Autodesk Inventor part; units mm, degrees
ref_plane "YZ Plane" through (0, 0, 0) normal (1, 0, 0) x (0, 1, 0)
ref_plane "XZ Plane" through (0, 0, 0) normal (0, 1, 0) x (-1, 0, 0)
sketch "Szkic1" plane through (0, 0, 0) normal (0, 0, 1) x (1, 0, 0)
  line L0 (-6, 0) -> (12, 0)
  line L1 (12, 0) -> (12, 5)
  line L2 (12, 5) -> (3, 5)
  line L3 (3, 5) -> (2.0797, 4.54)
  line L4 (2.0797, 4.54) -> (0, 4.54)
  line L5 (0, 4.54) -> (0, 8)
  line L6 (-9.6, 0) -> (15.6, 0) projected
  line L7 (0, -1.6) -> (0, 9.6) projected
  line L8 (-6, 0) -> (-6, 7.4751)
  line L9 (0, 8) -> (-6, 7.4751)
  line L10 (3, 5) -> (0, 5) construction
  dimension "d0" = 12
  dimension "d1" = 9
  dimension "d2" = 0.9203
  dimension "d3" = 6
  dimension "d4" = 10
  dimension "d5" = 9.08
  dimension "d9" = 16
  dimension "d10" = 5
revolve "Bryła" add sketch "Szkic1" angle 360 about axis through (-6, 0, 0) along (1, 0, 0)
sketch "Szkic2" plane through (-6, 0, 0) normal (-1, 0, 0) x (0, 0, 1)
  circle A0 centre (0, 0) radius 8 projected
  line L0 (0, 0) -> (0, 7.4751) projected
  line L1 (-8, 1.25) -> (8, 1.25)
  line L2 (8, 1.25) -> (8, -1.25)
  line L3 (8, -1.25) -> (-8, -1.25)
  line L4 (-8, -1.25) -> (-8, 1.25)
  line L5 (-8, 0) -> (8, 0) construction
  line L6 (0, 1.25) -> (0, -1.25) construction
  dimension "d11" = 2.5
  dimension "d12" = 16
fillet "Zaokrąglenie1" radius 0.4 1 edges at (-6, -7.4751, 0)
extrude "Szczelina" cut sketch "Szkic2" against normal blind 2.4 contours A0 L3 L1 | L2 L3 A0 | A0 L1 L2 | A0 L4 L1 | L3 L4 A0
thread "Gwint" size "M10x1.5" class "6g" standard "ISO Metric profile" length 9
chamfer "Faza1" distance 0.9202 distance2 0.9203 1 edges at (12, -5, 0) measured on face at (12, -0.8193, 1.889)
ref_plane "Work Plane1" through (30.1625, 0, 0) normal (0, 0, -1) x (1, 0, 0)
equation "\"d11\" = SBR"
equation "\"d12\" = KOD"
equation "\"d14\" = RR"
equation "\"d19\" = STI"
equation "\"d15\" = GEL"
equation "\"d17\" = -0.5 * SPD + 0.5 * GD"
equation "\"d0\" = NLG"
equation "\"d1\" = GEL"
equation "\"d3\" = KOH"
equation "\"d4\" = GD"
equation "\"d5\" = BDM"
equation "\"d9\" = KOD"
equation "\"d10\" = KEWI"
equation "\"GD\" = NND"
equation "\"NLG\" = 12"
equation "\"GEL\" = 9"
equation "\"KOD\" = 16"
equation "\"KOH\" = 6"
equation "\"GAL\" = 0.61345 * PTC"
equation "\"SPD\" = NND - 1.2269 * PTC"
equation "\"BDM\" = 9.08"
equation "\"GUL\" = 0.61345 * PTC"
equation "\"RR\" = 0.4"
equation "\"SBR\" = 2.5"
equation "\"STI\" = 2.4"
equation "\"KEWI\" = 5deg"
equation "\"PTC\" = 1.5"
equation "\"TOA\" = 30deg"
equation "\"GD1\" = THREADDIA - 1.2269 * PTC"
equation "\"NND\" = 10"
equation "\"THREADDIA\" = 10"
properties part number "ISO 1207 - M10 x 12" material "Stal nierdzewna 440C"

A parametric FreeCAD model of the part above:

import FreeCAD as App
import Part
import Sketcher
from FreeCAD import Vector
Q = App.Units.Quantity


def edges_at(feature, points):
    """Names of the edges that pass closest to the given points."""
    edges = feature.Shape.Edges
    near = lambda p: min(range(len(edges)), key=lambda i: edges[i].distToShape(Part.Vertex(*p))[0])
    return sorted({f"Edge{near(p) + 1}" for p in points})

doc = App.newDocument("Part")
body = doc.addObject("PartDesign::Body", "Body")

# Sketch on XY plane
sketch1 = doc.addObject("Sketcher::SketchObject", "Sketch")
body.addObject(sketch1)
sketch1.AttachmentSupport = (doc.XY_Plane, [""])
sketch1.MapMode = "FlatFace"
sketch1.addGeometry([
    Part.LineSegment(Vector(-6, 7.5, 0), Vector(-6, 0, 0)),  # 0
    Part.LineSegment(Vector(-6, 0, 0), Vector(12, 0, 0)),  # 1
    Part.LineSegment(Vector(12, 0, 0), Vector(12, 5, 0)),  # 2
    Part.LineSegment(Vector(12, 5, 0), Vector(3, 5, 0)),  # 3
    Part.LineSegment(Vector(3, 5, 0), Vector(2.1, 4.5, 0)),  # 4
    Part.LineSegment(Vector(2.1, 4.5, 0), Vector(0, 4.5, 0)),  # 5
    Part.LineSegment(Vector(0, 4.5, 0), Vector(0, 8, 0)),  # 6
    Part.LineSegment(Vector(0, 8, 0), Vector(-6, 7.5, 0)),  # 7
], False)
sketch1.addConstraint([
    Sketcher.Constraint("Coincident", 0, 2, 1, 1),
    Sketcher.Constraint("Coincident", 1, 2, 2, 1),
    Sketcher.Constraint("Coincident", 2, 2, 3, 1),
    Sketcher.Constraint("Coincident", 3, 2, 4, 1),
    Sketcher.Constraint("Coincident", 4, 2, 5, 1),
    Sketcher.Constraint("Coincident", 5, 2, 6, 1),
    Sketcher.Constraint("Coincident", 6, 2, 7, 1),
    Sketcher.Constraint("Coincident", 7, 2, 0, 1),
    Sketcher.Constraint("Vertical", 0),
    Sketcher.Constraint("Horizontal", 1),
    Sketcher.Constraint("Vertical", 2),
    Sketcher.Constraint("Horizontal", 3),
    Sketcher.Constraint("Horizontal", 5),
    Sketcher.Constraint("Vertical", 6),
    Sketcher.Constraint("PointOnObject", 0, 2, -1),
    Sketcher.Constraint("PointOnObject", 5, 2, -2),
    Sketcher.Constraint("DistanceX", 3, 2, 3, 1, 9.0),
    Sketcher.Constraint("DistanceY", 2, 1, 2, 2, 5.0),
    Sketcher.Constraint("DistanceX", 0, 2, -1, 1, 6.0),
    Sketcher.Constraint("DistanceX", -1, 1, 1, 2, 12.0),
    Sketcher.Constraint("Angle", 7, Q("-175.0003 deg")),
    Sketcher.Constraint("DistanceY", -1, 1, 6, 2, 8.0),
    Sketcher.Constraint("DistanceY", 6, 1, 6, 2, 3.46),
    Sketcher.Constraint("DistanceX", 4, 2, 3, 2, 0.9203),
])
revolution = doc.addObject("PartDesign::Revolution", "Revolution")
body.addObject(revolution)
revolution.Profile = sketch1
revolution.ReferenceAxis = (sketch1, ["H_Axis"])
revolution.Angle = 360
doc.recompute()

fillet = doc.addObject("PartDesign::Fillet", "Fillet")
body.addObject(fillet)
fillet.Base = (revolution, edges_at(revolution, [(-6, -7.475, 0)]))
fillet.Radius = 0.4

# Sketch on YZ plane
sketch2 = doc.addObject("Sketcher::SketchObject", "Sketch001")
body.addObject(sketch2)
sketch2.AttachmentSupport = (doc.YZ_Plane, [""])
sketch2.MapMode = "FlatFace"
sketch2.AttachmentOffset = App.Placement(Vector(0, 0, -6), App.Rotation())
sketch2.addGeometry([
    Part.LineSegment(Vector(-1.2, 8, 0), Vector(1.2, 8, 0)),
    Part.LineSegment(Vector(1.2, 8, 0), Vector(1.2, -8, 0)),
    Part.LineSegment(Vector(1.2, -8, 0), Vector(-1.2, -8, 0)),
    Part.LineSegment(Vector(-1.2, -8, 0), Vector(-1.2, 8, 0)),
], False)
sketch2.addConstraint([
    Sketcher.Constraint("Coincident", 0, 2, 1, 1),
    Sketcher.Constraint("Coincident", 1, 2, 2, 1),
    Sketcher.Constraint("Coincident", 2, 2, 3, 1),
    Sketcher.Constraint("Coincident", 3, 2, 0, 1),
    Sketcher.Constraint("Horizontal", 0),
    Sketcher.Constraint("Vertical", 1),
    Sketcher.Constraint("Horizontal", 2),
    Sketcher.Constraint("Vertical", 3),
    Sketcher.Constraint("Symmetric", 0, 2, 2, 2, -1, 1),
    Sketcher.Constraint("DistanceY", 1, 2, 1, 1, 16.0),
    Sketcher.Constraint("DistanceX", 0, 1, 0, 2, 2.5),
])
pocket1 = doc.addObject("PartDesign::Pocket", "Pocket")
body.addObject(pocket1)
pocket1.Profile = sketch2
pocket1.Length = 2.4
pocket1.Reversed = True
doc.recompute()

chamfer = doc.addObject("PartDesign::Chamfer", "Chamfer")
body.addObject(chamfer)
chamfer.Base = (pocket1, edges_at(pocket1, [(12, -5, 0)]))
chamfer.ChamferType = "Two distances"
chamfer.Size = 0.9202
chamfer.Size2 = 0.9203

doc.recompute()
